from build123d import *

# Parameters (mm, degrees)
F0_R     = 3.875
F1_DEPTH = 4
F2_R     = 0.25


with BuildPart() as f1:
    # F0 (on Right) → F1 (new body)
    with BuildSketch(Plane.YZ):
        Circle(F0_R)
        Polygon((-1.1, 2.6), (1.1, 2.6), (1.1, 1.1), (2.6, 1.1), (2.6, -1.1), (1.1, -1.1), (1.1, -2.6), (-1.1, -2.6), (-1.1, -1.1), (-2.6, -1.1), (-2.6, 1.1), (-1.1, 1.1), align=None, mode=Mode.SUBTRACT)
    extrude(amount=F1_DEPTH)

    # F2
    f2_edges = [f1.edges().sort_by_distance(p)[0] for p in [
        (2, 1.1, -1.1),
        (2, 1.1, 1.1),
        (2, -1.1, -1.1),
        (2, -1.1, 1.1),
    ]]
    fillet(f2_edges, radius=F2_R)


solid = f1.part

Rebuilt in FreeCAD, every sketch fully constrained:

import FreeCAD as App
import Part
import Sketcher
from FreeCAD import Vector
Q = App.Units.Quantity


def edges_at(feature, points):
    """Names of the edges that pass closest to the given points."""
    edges = feature.Shape.Edges
    near = lambda p: min(range(len(edges)), key=lambda i: edges[i].distToShape(Part.Vertex(*p))[0])
    return sorted({f"Edge{near(p) + 1}" for p in points})


def add_polygon(sketch, points):
    """Adds a closed chain of lines whose ends are joined by coincident constraints."""
    first, n = sketch.GeometryCount, len(points)
    for a, b in zip(points, points[1:] + points[:1]):
        sketch.addGeometry(Part.LineSegment(App.Vector(*a, 0), App.Vector(*b, 0)), False)
    for i in range(n):
        sketch.addConstraint(Sketcher.Constraint("Coincident", first + i, 2, first + (i + 1) % n, 1))

doc = App.newDocument("Part")
body = doc.addObject("PartDesign::Body", "Body")

# Sketch on YZ plane
sketch1 = body.newObject("Sketcher::SketchObject", "Sketch")
sketch1.AttachmentSupport = (doc.getObject("YZ_Plane"), [""])
sketch1.MapMode = "FlatFace"
sketch1.addGeometry(Part.Circle(Vector(0, 0, 0), Vector(0, 0, 1), 3.875), False)  # 0
add_polygon(sketch1, [(-1.1, 1.1), (-1.1, 2.6), (1.1, 2.6), (1.1, 1.1), (2.6, 1.1), (2.6, -1.1), (1.1, -1.1), (1.1, -2.6), (-1.1, -2.6), (-1.1, -1.1), (-2.6, -1.1), (-2.6, 1.1)])  # lines 1-12
sketch1.addConstraint([
    Sketcher.Constraint("Vertical", 1),
    Sketcher.Constraint("Horizontal", 2),
    Sketcher.Constraint("Vertical", 3),
    Sketcher.Constraint("Horizontal", 4),
    Sketcher.Constraint("Vertical", 5),
    Sketcher.Constraint("Horizontal", 6),
    Sketcher.Constraint("Vertical", 7),
    Sketcher.Constraint("Horizontal", 8),
    Sketcher.Constraint("Vertical", 9),
    Sketcher.Constraint("Horizontal", 10),
    Sketcher.Constraint("Vertical", 11),
    Sketcher.Constraint("Horizontal", 12),
    Sketcher.Constraint("Coincident", 0, 3, -1, 1),
    Sketcher.Constraint("Symmetric", 1, 2, 7, 2, -1, 1),
    Sketcher.Constraint("Symmetric", 3, 2, 9, 2, -1, 1),
    Sketcher.Constraint("Symmetric", 5, 2, 11, 2, -1, 1),
    Sketcher.Constraint("Symmetric", 6, 2, 9, 2, -2),
    Sketcher.Constraint("Equal", 12, 1),
    Sketcher.Constraint("Equal", 8, 5),
    Sketcher.Constraint("Diameter", 0, Q("7.75 mm")),
    Sketcher.Constraint("DistanceX", 2, 1, 2, 2, Q("2.2 mm")),
    Sketcher.Constraint("DistanceX", 4, 1, 4, 2, Q("1.5 mm")),
])
pad1 = body.newObject("PartDesign::Pad", "Pad")
pad1.Profile = sketch1
pad1.Length = 4
doc.recompute()

fillet = body.newObject("PartDesign::Fillet", "Fillet")
fillet.Base = (pad1, edges_at(pad1, [
    (2, 1.1, -1.1),
    (2, 1.1, 1.1),
    (2, -1.1, -1.1),
    (2, -1.1, 1.1),
]))
fillet.Radius = 0.25

doc.recompute()
